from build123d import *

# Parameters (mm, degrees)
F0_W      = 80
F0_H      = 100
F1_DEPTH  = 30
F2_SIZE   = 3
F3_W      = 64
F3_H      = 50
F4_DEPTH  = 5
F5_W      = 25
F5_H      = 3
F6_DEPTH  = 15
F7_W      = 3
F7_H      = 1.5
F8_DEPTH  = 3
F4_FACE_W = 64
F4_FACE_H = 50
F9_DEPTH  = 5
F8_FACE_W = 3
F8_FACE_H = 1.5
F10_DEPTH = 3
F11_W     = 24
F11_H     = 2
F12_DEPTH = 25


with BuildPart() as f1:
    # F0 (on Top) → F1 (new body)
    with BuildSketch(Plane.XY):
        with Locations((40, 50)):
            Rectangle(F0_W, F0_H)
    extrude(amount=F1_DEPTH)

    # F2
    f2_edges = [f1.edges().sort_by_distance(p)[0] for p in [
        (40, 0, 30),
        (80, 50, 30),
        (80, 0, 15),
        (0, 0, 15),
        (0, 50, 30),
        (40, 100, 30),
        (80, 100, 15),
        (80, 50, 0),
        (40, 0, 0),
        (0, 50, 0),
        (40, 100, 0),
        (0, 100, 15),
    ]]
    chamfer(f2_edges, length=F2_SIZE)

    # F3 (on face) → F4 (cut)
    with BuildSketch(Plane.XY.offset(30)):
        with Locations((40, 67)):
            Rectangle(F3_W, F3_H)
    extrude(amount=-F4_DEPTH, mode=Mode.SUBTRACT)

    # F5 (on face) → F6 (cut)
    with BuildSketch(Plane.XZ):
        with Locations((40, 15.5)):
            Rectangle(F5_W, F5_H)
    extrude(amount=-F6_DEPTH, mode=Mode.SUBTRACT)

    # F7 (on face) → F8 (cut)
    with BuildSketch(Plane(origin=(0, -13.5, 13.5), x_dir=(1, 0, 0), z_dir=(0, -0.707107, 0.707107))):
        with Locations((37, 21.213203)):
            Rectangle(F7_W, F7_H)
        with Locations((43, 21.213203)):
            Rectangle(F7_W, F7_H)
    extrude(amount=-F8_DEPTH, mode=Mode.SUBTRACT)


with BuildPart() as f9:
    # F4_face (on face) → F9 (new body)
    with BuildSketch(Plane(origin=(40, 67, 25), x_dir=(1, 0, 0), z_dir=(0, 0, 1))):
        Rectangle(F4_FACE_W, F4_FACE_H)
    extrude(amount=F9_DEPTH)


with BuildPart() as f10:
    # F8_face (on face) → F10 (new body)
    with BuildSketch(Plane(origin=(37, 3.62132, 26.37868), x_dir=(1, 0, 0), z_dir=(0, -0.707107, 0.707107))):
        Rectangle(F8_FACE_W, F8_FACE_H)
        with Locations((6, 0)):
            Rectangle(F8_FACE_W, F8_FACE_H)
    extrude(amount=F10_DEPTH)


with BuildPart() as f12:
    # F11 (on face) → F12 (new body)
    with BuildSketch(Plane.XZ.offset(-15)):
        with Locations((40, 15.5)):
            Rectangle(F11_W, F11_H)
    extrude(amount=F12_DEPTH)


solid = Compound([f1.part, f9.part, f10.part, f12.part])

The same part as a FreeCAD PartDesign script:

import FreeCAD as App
import Part
import Sketcher

V = App.Vector
Q = App.Units.Quantity


def add_polygon(sketch, points):
    """Adds a closed chain of lines whose ends are joined by coincident constraints."""
    first, n = sketch.GeometryCount, len(points)
    for a, b in zip(points, points[1:] + points[:1]):
        sketch.addGeometry(Part.LineSegment(App.Vector(*a, 0), App.Vector(*b, 0)), False)
    for i in range(n):
        sketch.addConstraint(Sketcher.Constraint("Coincident", first + i, 2, first + (i + 1) % n, 1))

doc = App.newDocument("Part")
body = doc.addObject("PartDesign::Body", "Body")

sketch1 = body.newObject("Sketcher::SketchObject", "Sketch")
sketch1.AttachmentSupport = (doc.getObject("XY_Plane"), [""])
sketch1.MapMode = "FlatFace"
add_polygon(sketch1, [(0, 100), (0, 0), (80, 0), (80, 100)])
sketch1.addConstraint(Sketcher.Constraint("Vertical", 0))
sketch1.addConstraint(Sketcher.Constraint("Horizontal", 1))
sketch1.addConstraint(Sketcher.Constraint("Vertical", 2))
sketch1.addConstraint(Sketcher.Constraint("Horizontal", 3))
sketch1.addConstraint(Sketcher.Constraint("Coincident", 0, 2, -1, 1))
sketch1.addConstraint(Sketcher.Constraint("DistanceX", 1, 1, 1, 2, Q("80 mm")))
sketch1.addConstraint(Sketcher.Constraint("DistanceY", 0, 2, 0, 1, Q("100 mm")))
pad1 = body.newObject("PartDesign::Pad", "Pad")
pad1.Profile = sketch1
pad1.Length = 30
doc.recompute()

chamfer = body.newObject("PartDesign::Chamfer", "Chamfer")
chamfer.Base = (pad1, ["Edge1"])
chamfer.UseAllEdges = True
chamfer.Size = 3

sketch2 = body.newObject("Sketcher::SketchObject", "Sketch001")
sketch2.AttachmentSupport = (doc.getObject("XY_Plane"), [""])
sketch2.MapMode = "FlatFace"
sketch2.AttachmentOffset = App.Placement(V(0, 0, 30), App.Rotation())
add_polygon(sketch2, [(8, 92), (8, 42), (72, 42), (72, 92)])
sketch2.addConstraint(Sketcher.Constraint("Vertical", 0))
sketch2.addConstraint(Sketcher.Constraint("Horizontal", 1))
sketch2.addConstraint(Sketcher.Constraint("Vertical", 2))
sketch2.addConstraint(Sketcher.Constraint("Horizontal", 3))
sketch2.addConstraint(Sketcher.Constraint("DistanceX", 1, 1, 1, 2, Q("64 mm")))
sketch2.addConstraint(Sketcher.Constraint("DistanceY", 0, 2, 0, 1, Q("50 mm")))
sketch2.addConstraint(Sketcher.Constraint("DistanceX", -1, 1, 0, 2, Q("8 mm")))
sketch2.addConstraint(Sketcher.Constraint("DistanceY", -1, 1, 0, 2, Q("42 mm")))
pocket1 = body.newObject("PartDesign::Pocket", "Pocket")
pocket1.Profile = sketch2
pocket1.Length = 5

sketch3 = body.newObject("Sketcher::SketchObject", "Sketch002")
sketch3.AttachmentSupport = (doc.getObject("XZ_Plane"), [""])
sketch3.MapMode = "FlatFace"
add_polygon(sketch3, [(27.5, 17), (27.5, 14), (52.5, 14), (52.5, 17)])
sketch3.addConstraint(Sketcher.Constraint("Vertical", 0))
sketch3.addConstraint(Sketcher.Constraint("Horizontal", 1))
sketch3.addConstraint(Sketcher.Constraint("Vertical", 2))
sketch3.addConstraint(Sketcher.Constraint("Horizontal", 3))
sketch3.addConstraint(Sketcher.Constraint("DistanceX", 1, 1, 1, 2, Q("25 mm")))
sketch3.addConstraint(Sketcher.Constraint("DistanceY", 0, 2, 0, 1, Q("3 mm")))
sketch3.addConstraint(Sketcher.Constraint("DistanceY", -1, 1, 0, 2, Q("14 mm")))
sketch3.addConstraint(Sketcher.Constraint("DistanceX", -1, 1, 0, 2, Q("27.5 mm")))
pocket2 = body.newObject("PartDesign::Pocket", "Pocket001")
pocket2.Profile = sketch3
pocket2.Length = 15

sketch4 = body.newObject("Sketcher::SketchObject", "Sketch003")
sketch4.Placement = App.Placement(V(0, -13.5, 13.5), App.Rotation(V(1, 0, 0), V(0, 0.707106781, 0.707106781), V(0, -0.707106781, 0.707106781), "ZXY"))
add_polygon(sketch4, [(35.5, 22), (35.5, 20.5), (38.5, 20.5), (38.5, 22)])
add_polygon(sketch4, [(41.5, 22), (41.5, 20.5), (44.5, 20.5), (44.5, 22)])
sketch4.addConstraint(Sketcher.Constraint("Vertical", 0))
sketch4.addConstraint(Sketcher.Constraint("Horizontal", 1))
sketch4.addConstraint(Sketcher.Constraint("Vertical", 2))
sketch4.addConstraint(Sketcher.Constraint("Horizontal", 3))
sketch4.addConstraint(Sketcher.Constraint("Vertical", 4))
sketch4.addConstraint(Sketcher.Constraint("Horizontal", 5))
sketch4.addConstraint(Sketcher.Constraint("Vertical", 6))
sketch4.addConstraint(Sketcher.Constraint("Horizontal", 7))
sketch4.addConstraint(Sketcher.Constraint("Horizontal", 1, 2, 4, 2))
sketch4.addConstraint(Sketcher.Constraint("Horizontal", 3, 2, 6, 2))
sketch4.addConstraint(Sketcher.Constraint("Equal", 3, 5))
sketch4.addConstraint(Sketcher.Constraint("DistanceX", 1, 1, 1, 2, Q("3 mm")))
sketch4.addConstraint(Sketcher.Constraint("DistanceY", 0, 2, 0, 1, Q("1.5 mm")))
sketch4.addConstraint(Sketcher.Constraint("DistanceX", 1, 2, 4, 2, Q("3 mm")))
sketch4.addConstraint(Sketcher.Constraint("DistanceX", -1, 1, 0, 2, Q("35.5 mm")))
sketch4.addConstraint(Sketcher.Constraint("DistanceY", -1, 1, 0, 2, Q("20.463203 mm")))
pocket3 = body.newObject("PartDesign::Pocket", "Pocket002")
pocket3.Profile = sketch4
pocket3.Length = 3
body2 = doc.addObject("PartDesign::Body", "Body001")

sketch5 = body2.newObject("Sketcher::SketchObject", "Sketch004")
sketch5.AttachmentSupport = (doc.getObject("XY_Plane001"), [""])
sketch5.MapMode = "FlatFace"
sketch5.AttachmentOffset = App.Placement(V(0, 0, 25), App.Rotation())
add_polygon(sketch5, [(8, 92), (8, 42), (72, 42), (72, 92)])
sketch5.addConstraint(Sketcher.Constraint("Vertical", 0))
sketch5.addConstraint(Sketcher.Constraint("Horizontal", 1))
sketch5.addConstraint(Sketcher.Constraint("Vertical", 2))
sketch5.addConstraint(Sketcher.Constraint("Horizontal", 3))
sketch5.addConstraint(Sketcher.Constraint("DistanceX", 1, 1, 1, 2, Q("64 mm")))
sketch5.addConstraint(Sketcher.Constraint("DistanceY", 0, 2, 0, 1, Q("50 mm")))
sketch5.addConstraint(Sketcher.Constraint("DistanceX", -1, 1, 0, 2, Q("8 mm")))
sketch5.addConstraint(Sketcher.Constraint("DistanceY", -1, 1, 0, 2, Q("42 mm")))
pad2 = body2.newObject("PartDesign::Pad", "Pad001")
pad2.Profile = sketch5
pad2.Length = 5
body3 = doc.addObject("PartDesign::Body", "Body002")
body3.AllowCompound = True

sketch6 = body3.newObject("Sketcher::SketchObject", "Sketch005")
sketch6.Placement = App.Placement(V(37, 3.62132, 26.37868), App.Rotation(V(1, 0, 0), V(0, 0.707106781, 0.707106781), V(0, -0.707106781, 0.707106781), "ZXY"))
add_polygon(sketch6, [(-1.5, 0.8), (-1.5, -0.8), (1.5, -0.8), (1.5, 0.8)])
add_polygon(sketch6, [(4.5, 0.8), (4.5, -0.8), (7.5, -0.8), (7.5, 0.8)])
sketch6.addConstraint(Sketcher.Constraint("Vertical", 0))
sketch6.addConstraint(Sketcher.Constraint("Horizontal", 1))
sketch6.addConstraint(Sketcher.Constraint("Vertical", 2))
sketch6.addConstraint(Sketcher.Constraint("Horizontal", 3))
sketch6.addConstraint(Sketcher.Constraint("Vertical", 4))
sketch6.addConstraint(Sketcher.Constraint("Horizontal", 5))
sketch6.addConstraint(Sketcher.Constraint("Vertical", 6))
sketch6.addConstraint(Sketcher.Constraint("Horizontal", 7))
sketch6.addConstraint(Sketcher.Constraint("Symmetric", 0, 2, 2, 2, -1, 1))
sketch6.addConstraint(Sketcher.Constraint("Horizontal", 1, 2, 4, 2))
sketch6.addConstraint(Sketcher.Constraint("Horizontal", 3, 2, 6, 2))
sketch6.addConstraint(Sketcher.Constraint("Equal", 3, 5))
sketch6.addConstraint(Sketcher.Constraint("DistanceX", 1, 1, 1, 2, Q("3 mm")))
sketch6.addConstraint(Sketcher.Constraint("DistanceY", 0, 2, 0, 1, Q("1.5 mm")))
sketch6.addConstraint(Sketcher.Constraint("DistanceX", 1, 2, 4, 2, Q("3 mm")))
pad3 = body3.newObject("PartDesign::Pad", "Pad002")
pad3.Profile = sketch6
pad3.Length = 3
body4 = doc.addObject("PartDesign::Body", "Body003")

sketch7 = body4.newObject("Sketcher::SketchObject", "Sketch006")
sketch7.AttachmentSupport = (doc.getObject("XZ_Plane003"), [""])
sketch7.MapMode = "FlatFace"
sketch7.AttachmentOffset = App.Placement(V(0, 0, -15), App.Rotation())
add_polygon(sketch7, [(28, 16.5), (28, 14.5), (52, 14.5), (52, 16.5)])
sketch7.addConstraint(Sketcher.Constraint("Vertical", 0))
sketch7.addConstraint(Sketcher.Constraint("Horizontal", 1))
sketch7.addConstraint(Sketcher.Constraint("Vertical", 2))
sketch7.addConstraint(Sketcher.Constraint("Horizontal", 3))
sketch7.addConstraint(Sketcher.Constraint("DistanceX", 1, 1, 1, 2, Q("24 mm")))
sketch7.addConstraint(Sketcher.Constraint("DistanceY", 0, 2, 0, 1, Q("2 mm")))
sketch7.addConstraint(Sketcher.Constraint("DistanceX", -1, 1, 0, 2, Q("28 mm")))
sketch7.addConstraint(Sketcher.Constraint("DistanceY", -1, 1, 0, 2, Q("14.5 mm")))
pad4 = body4.newObject("PartDesign::Pad", "Pad003")
pad4.Profile = sketch7
pad4.Length = 25

doc.recompute()
